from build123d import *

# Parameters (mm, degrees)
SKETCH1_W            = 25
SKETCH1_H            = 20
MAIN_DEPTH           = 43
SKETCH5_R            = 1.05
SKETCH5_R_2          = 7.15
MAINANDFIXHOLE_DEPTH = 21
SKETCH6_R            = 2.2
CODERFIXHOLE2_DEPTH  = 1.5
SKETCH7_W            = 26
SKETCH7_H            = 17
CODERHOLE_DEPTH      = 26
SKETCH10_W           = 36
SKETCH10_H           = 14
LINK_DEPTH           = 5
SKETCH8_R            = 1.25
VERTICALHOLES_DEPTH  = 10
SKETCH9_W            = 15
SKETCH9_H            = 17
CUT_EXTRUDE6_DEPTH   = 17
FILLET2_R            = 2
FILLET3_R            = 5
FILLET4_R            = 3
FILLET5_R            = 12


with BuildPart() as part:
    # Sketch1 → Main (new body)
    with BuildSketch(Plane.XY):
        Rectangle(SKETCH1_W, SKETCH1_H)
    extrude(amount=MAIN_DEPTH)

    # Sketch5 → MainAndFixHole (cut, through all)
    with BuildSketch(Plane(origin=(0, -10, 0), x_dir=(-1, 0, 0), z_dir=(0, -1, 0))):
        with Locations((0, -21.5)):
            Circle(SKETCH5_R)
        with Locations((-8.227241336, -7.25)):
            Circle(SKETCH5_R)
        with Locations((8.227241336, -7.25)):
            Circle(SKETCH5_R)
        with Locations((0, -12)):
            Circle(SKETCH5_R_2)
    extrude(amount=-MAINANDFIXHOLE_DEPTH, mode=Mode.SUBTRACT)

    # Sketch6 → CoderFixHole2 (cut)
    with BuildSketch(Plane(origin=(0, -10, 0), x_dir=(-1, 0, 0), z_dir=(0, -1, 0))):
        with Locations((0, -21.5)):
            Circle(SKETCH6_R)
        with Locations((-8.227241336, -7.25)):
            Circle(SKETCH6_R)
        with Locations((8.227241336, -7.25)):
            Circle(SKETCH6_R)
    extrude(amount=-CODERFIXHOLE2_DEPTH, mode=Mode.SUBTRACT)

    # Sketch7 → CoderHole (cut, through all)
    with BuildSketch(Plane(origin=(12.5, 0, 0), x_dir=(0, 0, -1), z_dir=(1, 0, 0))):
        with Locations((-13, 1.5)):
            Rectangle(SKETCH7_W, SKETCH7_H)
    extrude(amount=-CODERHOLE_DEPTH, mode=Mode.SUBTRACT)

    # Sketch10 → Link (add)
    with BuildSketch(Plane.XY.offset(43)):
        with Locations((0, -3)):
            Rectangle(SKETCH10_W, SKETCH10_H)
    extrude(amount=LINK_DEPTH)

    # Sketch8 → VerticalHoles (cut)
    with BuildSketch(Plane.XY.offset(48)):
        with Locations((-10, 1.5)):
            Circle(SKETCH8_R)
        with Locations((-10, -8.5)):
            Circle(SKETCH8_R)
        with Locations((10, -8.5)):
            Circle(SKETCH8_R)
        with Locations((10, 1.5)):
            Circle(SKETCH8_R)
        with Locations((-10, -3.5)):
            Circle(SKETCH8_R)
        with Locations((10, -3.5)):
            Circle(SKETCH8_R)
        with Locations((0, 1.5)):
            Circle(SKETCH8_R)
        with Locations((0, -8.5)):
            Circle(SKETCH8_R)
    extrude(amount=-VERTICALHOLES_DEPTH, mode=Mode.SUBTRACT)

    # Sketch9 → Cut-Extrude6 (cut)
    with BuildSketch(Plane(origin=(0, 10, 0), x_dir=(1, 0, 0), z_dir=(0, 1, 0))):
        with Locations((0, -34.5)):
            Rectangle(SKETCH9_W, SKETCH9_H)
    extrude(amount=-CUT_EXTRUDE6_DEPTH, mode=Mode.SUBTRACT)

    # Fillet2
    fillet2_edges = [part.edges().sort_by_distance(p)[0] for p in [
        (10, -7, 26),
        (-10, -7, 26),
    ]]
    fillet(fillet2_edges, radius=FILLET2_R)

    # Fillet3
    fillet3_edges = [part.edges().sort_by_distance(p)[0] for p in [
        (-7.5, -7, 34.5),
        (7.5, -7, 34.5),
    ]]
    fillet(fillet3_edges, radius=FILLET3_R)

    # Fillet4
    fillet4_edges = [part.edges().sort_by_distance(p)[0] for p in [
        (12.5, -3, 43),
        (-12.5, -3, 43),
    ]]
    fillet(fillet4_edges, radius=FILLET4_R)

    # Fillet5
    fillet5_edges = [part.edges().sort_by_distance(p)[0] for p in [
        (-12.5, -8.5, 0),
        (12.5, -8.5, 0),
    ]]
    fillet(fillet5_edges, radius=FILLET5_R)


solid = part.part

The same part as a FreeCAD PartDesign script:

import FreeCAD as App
import Part
import Sketcher
from FreeCAD import Vector
Q = App.Units.Quantity


def edges_at(feature, points):
    """Names of the edges that pass closest to the given points."""
    edges = feature.Shape.Edges
    near = lambda p: min(range(len(edges)), key=lambda i: edges[i].distToShape(Part.Vertex(*p))[0])
    return sorted({f"Edge{near(p) + 1}" for p in points})


def add_polygon(sketch, points):
    """Adds a closed chain of lines whose ends are joined by coincident constraints."""
    first, n = sketch.GeometryCount, len(points)
    for a, b in zip(points, points[1:] + points[:1]):
        sketch.addGeometry(Part.LineSegment(App.Vector(*a, 0), App.Vector(*b, 0)), False)
    for i in range(n):
        sketch.addConstraint(Sketcher.Constraint("Coincident", first + i, 2, first + (i + 1) % n, 1))

doc = App.newDocument("Part")
body = doc.addObject("PartDesign::Body", "Body")

sketch1 = body.newObject("Sketcher::SketchObject", "Sketch")
sketch1.AttachmentSupport = (doc.getObject("XY_Plane"), [""])
sketch1.MapMode = "FlatFace"
add_polygon(sketch1, [(-12, 10), (-12, -10), (12, -10), (12, 10)])
sketch1.addConstraint(Sketcher.Constraint("Vertical", 0))
sketch1.addConstraint(Sketcher.Constraint("Horizontal", 1))
sketch1.addConstraint(Sketcher.Constraint("Vertical", 2))
sketch1.addConstraint(Sketcher.Constraint("Horizontal", 3))
sketch1.addConstraint(Sketcher.Constraint("Symmetric", 0, 2, 2, 2, -1, 1))
sketch1.addConstraint(Sketcher.Constraint("DistanceX", 1, 1, 1, 2, Q("25 mm")))
sketch1.addConstraint(Sketcher.Constraint("DistanceY", 0, 2, 0, 1, Q("20 mm")))
pad1 = body.newObject("PartDesign::Pad", "Pad")
pad1.Profile = sketch1
pad1.Length = 43

sketch2 = body.newObject("Sketcher::SketchObject", "Sketch001")
sketch2.AttachmentSupport = (doc.getObject("XZ_Plane"), [""])
sketch2.MapMode = "FlatFace"
sketch2.AttachmentOffset = App.Placement(Vector(0, 0, 10), App.Rotation())
sketch2.addGeometry(Part.Circle(Vector(0, 21.5, 0), Vector(0, 0, 1), 1.1), False)
sketch2.addGeometry(Part.Circle(Vector(8.2, 7.2, 0), Vector(0, 0, 1), 1.1), False)
sketch2.addGeometry(Part.Circle(Vector(-8.2, 7.2, 0), Vector(0, 0, 1), 1.1), False)
sketch2.addGeometry(Part.Circle(Vector(0, 12, 0), Vector(0, 0, 1), 7.2), False)
sketch2.addConstraint(Sketcher.Constraint("Equal", 0, 1))
sketch2.addConstraint(Sketcher.Constraint("Equal", 1, 2))
sketch2.addConstraint(Sketcher.Constraint("Symmetric", 1, 3, 2, 3, -2))
sketch2.addConstraint(Sketcher.Constraint("PointOnObject", 0, 3, -2))
sketch2.addConstraint(Sketcher.Constraint("PointOnObject", 3, 3, -2))
sketch2.addConstraint(Sketcher.Constraint("Diameter", 0, Q("2.1 mm")))
sketch2.addConstraint(Sketcher.Constraint("Diameter", 3, Q("14.3 mm")))
sketch2.addConstraint(Sketcher.Constraint("DistanceY", -1, 1, 3, 3, Q("12 mm")))
sketch2.addConstraint(Sketcher.Constraint("DistanceY", -1, 1, 0, 3, Q("21.5 mm")))
sketch2.addConstraint(Sketcher.Constraint("DistanceY", -1, 1, 1, 3, Q("7.25 mm")))
sketch2.addConstraint(Sketcher.Constraint("DistanceX", -1, 1, 1, 3, Q("8.227241 mm")))
pocket1 = body.newObject("PartDesign::Pocket", "Pocket")
pocket1.Profile = sketch2
pocket1.Type = "ThroughAll"

sketch3 = body.newObject("Sketcher::SketchObject", "Sketch002")
sketch3.AttachmentSupport = (doc.getObject("XZ_Plane"), [""])
sketch3.MapMode = "FlatFace"
sketch3.AttachmentOffset = App.Placement(Vector(0, 0, 10), App.Rotation())
sketch3.addGeometry(Part.Circle(Vector(0, 21.5, 0), Vector(0, 0, 1), 2.2), False)
sketch3.addGeometry(Part.Circle(Vector(8.2, 7.2, 0), Vector(0, 0, 1), 2.2), False)
sketch3.addGeometry(Part.Circle(Vector(-8.2, 7.2, 0), Vector(0, 0, 1), 2.2), False)
sketch3.addConstraint(Sketcher.Constraint("Equal", 0, 1))
sketch3.addConstraint(Sketcher.Constraint("Equal", 1, 2))
sketch3.addConstraint(Sketcher.Constraint("Symmetric", 1, 3, 2, 3, -2))
sketch3.addConstraint(Sketcher.Constraint("PointOnObject", 0, 3, -2))
sketch3.addConstraint(Sketcher.Constraint("Diameter", 0, Q("4.4 mm")))
sketch3.addConstraint(Sketcher.Constraint("DistanceY", -1, 1, 0, 3, Q("21.5 mm")))
sketch3.addConstraint(Sketcher.Constraint("DistanceY", -1, 1, 1, 3, Q("7.25 mm")))
sketch3.addConstraint(Sketcher.Constraint("DistanceX", -1, 1, 1, 3, Q("8.227241 mm")))
pocket2 = body.newObject("PartDesign::Pocket", "Pocket001")
pocket2.Profile = sketch3
pocket2.Length = 1.5

sketch4 = body.newObject("Sketcher::SketchObject", "Sketch003")
sketch4.AttachmentSupport = (doc.getObject("YZ_Plane"), [""])
sketch4.MapMode = "FlatFace"
sketch4.AttachmentOffset = App.Placement(Vector(0, 0, 12.5), App.Rotation())
add_polygon(sketch4, [(10, 26), (-7, 26), (-7, 0), (10, 0)])
sketch4.addConstraint(Sketcher.Constraint("Horizontal", 0))
sketch4.addConstraint(Sketcher.Constraint("Vertical", 1))
sketch4.addConstraint(Sketcher.Constraint("Horizontal", 2))
sketch4.addConstraint(Sketcher.Constraint("Vertical", 3))
sketch4.addConstraint(Sketcher.Constraint("PointOnObject", 1, 2, -1))
sketch4.addConstraint(Sketcher.Constraint("DistanceX", 0, 2, 0, 1, Q("17 mm")))
sketch4.addConstraint(Sketcher.Constraint("DistanceY", 1, 2, 1, 1, Q("26 mm")))
sketch4.addConstraint(Sketcher.Constraint("DistanceX", 0, 2, -1, 1, Q("7 mm")))
pocket3 = body.newObject("PartDesign::Pocket", "Pocket002")
pocket3.Profile = sketch4
pocket3.Type = "ThroughAll"

sketch5 = body.newObject("Sketcher::SketchObject", "Sketch004")
sketch5.AttachmentSupport = (doc.getObject("XY_Plane"), [""])
sketch5.MapMode = "FlatFace"
sketch5.AttachmentOffset = App.Placement(Vector(0, 0, 43), App.Rotation())
add_polygon(sketch5, [(-18, 4), (-18, -10), (18, -10), (18, 4)])
sketch5.addConstraint(Sketcher.Constraint("Vertical", 0))
sketch5.addConstraint(Sketcher.Constraint("Horizontal", 1))
sketch5.addConstraint(Sketcher.Constraint("Vertical", 2))
sketch5.addConstraint(Sketcher.Constraint("Horizontal", 3))
sketch5.addConstraint(Sketcher.Constraint("DistanceX", 1, 1, 1, 2, Q("36 mm")))
sketch5.addConstraint(Sketcher.Constraint("DistanceY", 0, 2, 0, 1, Q("14 mm")))
sketch5.addConstraint(Sketcher.Constraint("DistanceX", 0, 2, -1, 1, Q("18 mm")))
sketch5.addConstraint(Sketcher.Constraint("DistanceY", 0, 2, -1, 1, Q("10 mm")))
pad2 = body.newObject("PartDesign::Pad", "Pad001")
pad2.Profile = sketch5
pad2.Length = 5

sketch6 = body.newObject("Sketcher::SketchObject", "Sketch005")
sketch6.AttachmentSupport = (doc.getObject("XY_Plane"), [""])
sketch6.MapMode = "FlatFace"
sketch6.AttachmentOffset = App.Placement(Vector(0, 0, 48), App.Rotation())
sketch6.addGeometry(Part.Circle(Vector(-10, 1.5, 0), Vector(0, 0, 1), 1.2), False)
sketch6.addGeometry(Part.Circle(Vector(-10, -8.5, 0), Vector(0, 0, 1), 1.2), False)
sketch6.addGeometry(Part.Circle(Vector(10, -8.5, 0), Vector(0, 0, 1), 1.2), False)
sketch6.addGeometry(Part.Circle(Vector(10, 1.5, 0), Vector(0, 0, 1), 1.2), False)
sketch6.addGeometry(Part.Circle(Vector(-10, -3.5, 0), Vector(0, 0, 1), 1.2), False)
sketch6.addGeometry(Part.Circle(Vector(10, -3.5, 0), Vector(0, 0, 1), 1.2), False)
sketch6.addGeometry(Part.Circle(Vector(0, 1.5, 0), Vector(0, 0, 1), 1.2), False)
sketch6.addGeometry(Part.Circle(Vector(0, -8.5, 0), Vector(0, 0, 1), 1.2), False)
sketch6.addConstraint(Sketcher.Constraint("Equal", 0, 1))
sketch6.addConstraint(Sketcher.Constraint("Equal", 1, 2))
sketch6.addConstraint(Sketcher.Constraint("Equal", 2, 3))
sketch6.addConstraint(Sketcher.Constraint("Equal", 3, 4))
sketch6.addConstraint(Sketcher.Constraint("Equal", 4, 5))
sketch6.addConstraint(Sketcher.Constraint("Equal", 5, 6))
sketch6.addConstraint(Sketcher.Constraint("Equal", 6, 7))
sketch6.addConstraint(Sketcher.Constraint("Symmetric", 1, 3, 2, 3, -2))
sketch6.addConstraint(Sketcher.Constraint("Symmetric", 0, 3, 3, 3, -2))
sketch6.addConstraint(Sketcher.Constraint("Symmetric", 4, 3, 5, 3, -2))
sketch6.addConstraint(Sketcher.Constraint("PointOnObject", 6, 3, -2))
sketch6.addConstraint(Sketcher.Constraint("PointOnObject", 7, 3, -2))
sketch6.addConstraint(Sketcher.Constraint("Horizontal", 3, 3, 6, 3))
sketch6.addConstraint(Sketcher.Constraint("Horizontal", 2, 3, 7, 3))
sketch6.addConstraint(Sketcher.Constraint("Vertical", 0, 3, 1, 3))
sketch6.addConstraint(Sketcher.Constraint("Vertical", 1, 3, 4, 3))
sketch6.addConstraint(Sketcher.Constraint("Diameter", 0, Q("2.5 mm")))
sketch6.addConstraint(Sketcher.Constraint("DistanceX", 0, 3, -1, 1, Q("10 mm")))
sketch6.addConstraint(Sketcher.Constraint("DistanceY", 1, 3, 0, 3, Q("10 mm")))
sketch6.addConstraint(Sketcher.Constraint("DistanceY", 4, 3, 0, 3, Q("5 mm")))
sketch6.addConstraint(Sketcher.Constraint("DistanceY", -1, 1, 0, 3, Q("1.5 mm")))
pocket4 = body.newObject("PartDesign::Pocket", "Pocket003")
pocket4.Profile = sketch6
pocket4.Length = 10

sketch7 = body.newObject("Sketcher::SketchObject", "Sketch006")
sketch7.AttachmentSupport = (doc.getObject("XZ_Plane"), [""])
sketch7.MapMode = "FlatFace"
sketch7.AttachmentOffset = App.Placement(Vector(0, 0, -10), App.Rotation())
add_polygon(sketch7, [(-8, 26), (-8, 43), (8, 43), (8, 26)])
sketch7.addConstraint(Sketcher.Constraint("Vertical", 0))
sketch7.addConstraint(Sketcher.Constraint("Horizontal", 1))
sketch7.addConstraint(Sketcher.Constraint("Vertical", 2))
sketch7.addConstraint(Sketcher.Constraint("Horizontal", 3))
sketch7.addConstraint(Sketcher.Constraint("DistanceX", 1, 1, 1, 2, Q("15 mm")))
sketch7.addConstraint(Sketcher.Constraint("DistanceY", 0, 1, 0, 2, Q("17 mm")))
sketch7.addConstraint(Sketcher.Constraint("DistanceY", -1, 1, 0, 2, Q("43 mm")))
sketch7.addConstraint(Sketcher.Constraint("DistanceX", 0, 2, -1, 1, Q("7.5 mm")))
pocket5 = body.newObject("PartDesign::Pocket", "Pocket004")
pocket5.Profile = sketch7
pocket5.Length = 17
pocket5.Reversed = True
doc.recompute()

fillet = body.newObject("PartDesign::Fillet", "Fillet")
fillet.Base = (pocket5, edges_at(pocket5, [(10, -7, 26), (-10, -7, 26)]))
fillet.Radius = 2
doc.recompute()

fillet2 = body.newObject("PartDesign::Fillet", "Fillet001")
fillet2.Base = (fillet, edges_at(fillet, [(-7.5, -7, 33.5), (7.5, -7, 33.5)]))
fillet2.Radius = 5
doc.recompute()

fillet3 = body.newObject("PartDesign::Fillet", "Fillet002")
fillet3.Base = (fillet2, edges_at(fillet2, [(12.5, -3, 43), (-12.5, -3, 43)]))
fillet3.Radius = 3
doc.recompute()

fillet4 = body.newObject("PartDesign::Fillet", "Fillet003")
fillet4.Base = (fillet3, edges_at(fillet3, [(-12.5, -8.5, 0), (12.5, -8.5, 0)]))
fillet4.Radius = 12

doc.recompute()
